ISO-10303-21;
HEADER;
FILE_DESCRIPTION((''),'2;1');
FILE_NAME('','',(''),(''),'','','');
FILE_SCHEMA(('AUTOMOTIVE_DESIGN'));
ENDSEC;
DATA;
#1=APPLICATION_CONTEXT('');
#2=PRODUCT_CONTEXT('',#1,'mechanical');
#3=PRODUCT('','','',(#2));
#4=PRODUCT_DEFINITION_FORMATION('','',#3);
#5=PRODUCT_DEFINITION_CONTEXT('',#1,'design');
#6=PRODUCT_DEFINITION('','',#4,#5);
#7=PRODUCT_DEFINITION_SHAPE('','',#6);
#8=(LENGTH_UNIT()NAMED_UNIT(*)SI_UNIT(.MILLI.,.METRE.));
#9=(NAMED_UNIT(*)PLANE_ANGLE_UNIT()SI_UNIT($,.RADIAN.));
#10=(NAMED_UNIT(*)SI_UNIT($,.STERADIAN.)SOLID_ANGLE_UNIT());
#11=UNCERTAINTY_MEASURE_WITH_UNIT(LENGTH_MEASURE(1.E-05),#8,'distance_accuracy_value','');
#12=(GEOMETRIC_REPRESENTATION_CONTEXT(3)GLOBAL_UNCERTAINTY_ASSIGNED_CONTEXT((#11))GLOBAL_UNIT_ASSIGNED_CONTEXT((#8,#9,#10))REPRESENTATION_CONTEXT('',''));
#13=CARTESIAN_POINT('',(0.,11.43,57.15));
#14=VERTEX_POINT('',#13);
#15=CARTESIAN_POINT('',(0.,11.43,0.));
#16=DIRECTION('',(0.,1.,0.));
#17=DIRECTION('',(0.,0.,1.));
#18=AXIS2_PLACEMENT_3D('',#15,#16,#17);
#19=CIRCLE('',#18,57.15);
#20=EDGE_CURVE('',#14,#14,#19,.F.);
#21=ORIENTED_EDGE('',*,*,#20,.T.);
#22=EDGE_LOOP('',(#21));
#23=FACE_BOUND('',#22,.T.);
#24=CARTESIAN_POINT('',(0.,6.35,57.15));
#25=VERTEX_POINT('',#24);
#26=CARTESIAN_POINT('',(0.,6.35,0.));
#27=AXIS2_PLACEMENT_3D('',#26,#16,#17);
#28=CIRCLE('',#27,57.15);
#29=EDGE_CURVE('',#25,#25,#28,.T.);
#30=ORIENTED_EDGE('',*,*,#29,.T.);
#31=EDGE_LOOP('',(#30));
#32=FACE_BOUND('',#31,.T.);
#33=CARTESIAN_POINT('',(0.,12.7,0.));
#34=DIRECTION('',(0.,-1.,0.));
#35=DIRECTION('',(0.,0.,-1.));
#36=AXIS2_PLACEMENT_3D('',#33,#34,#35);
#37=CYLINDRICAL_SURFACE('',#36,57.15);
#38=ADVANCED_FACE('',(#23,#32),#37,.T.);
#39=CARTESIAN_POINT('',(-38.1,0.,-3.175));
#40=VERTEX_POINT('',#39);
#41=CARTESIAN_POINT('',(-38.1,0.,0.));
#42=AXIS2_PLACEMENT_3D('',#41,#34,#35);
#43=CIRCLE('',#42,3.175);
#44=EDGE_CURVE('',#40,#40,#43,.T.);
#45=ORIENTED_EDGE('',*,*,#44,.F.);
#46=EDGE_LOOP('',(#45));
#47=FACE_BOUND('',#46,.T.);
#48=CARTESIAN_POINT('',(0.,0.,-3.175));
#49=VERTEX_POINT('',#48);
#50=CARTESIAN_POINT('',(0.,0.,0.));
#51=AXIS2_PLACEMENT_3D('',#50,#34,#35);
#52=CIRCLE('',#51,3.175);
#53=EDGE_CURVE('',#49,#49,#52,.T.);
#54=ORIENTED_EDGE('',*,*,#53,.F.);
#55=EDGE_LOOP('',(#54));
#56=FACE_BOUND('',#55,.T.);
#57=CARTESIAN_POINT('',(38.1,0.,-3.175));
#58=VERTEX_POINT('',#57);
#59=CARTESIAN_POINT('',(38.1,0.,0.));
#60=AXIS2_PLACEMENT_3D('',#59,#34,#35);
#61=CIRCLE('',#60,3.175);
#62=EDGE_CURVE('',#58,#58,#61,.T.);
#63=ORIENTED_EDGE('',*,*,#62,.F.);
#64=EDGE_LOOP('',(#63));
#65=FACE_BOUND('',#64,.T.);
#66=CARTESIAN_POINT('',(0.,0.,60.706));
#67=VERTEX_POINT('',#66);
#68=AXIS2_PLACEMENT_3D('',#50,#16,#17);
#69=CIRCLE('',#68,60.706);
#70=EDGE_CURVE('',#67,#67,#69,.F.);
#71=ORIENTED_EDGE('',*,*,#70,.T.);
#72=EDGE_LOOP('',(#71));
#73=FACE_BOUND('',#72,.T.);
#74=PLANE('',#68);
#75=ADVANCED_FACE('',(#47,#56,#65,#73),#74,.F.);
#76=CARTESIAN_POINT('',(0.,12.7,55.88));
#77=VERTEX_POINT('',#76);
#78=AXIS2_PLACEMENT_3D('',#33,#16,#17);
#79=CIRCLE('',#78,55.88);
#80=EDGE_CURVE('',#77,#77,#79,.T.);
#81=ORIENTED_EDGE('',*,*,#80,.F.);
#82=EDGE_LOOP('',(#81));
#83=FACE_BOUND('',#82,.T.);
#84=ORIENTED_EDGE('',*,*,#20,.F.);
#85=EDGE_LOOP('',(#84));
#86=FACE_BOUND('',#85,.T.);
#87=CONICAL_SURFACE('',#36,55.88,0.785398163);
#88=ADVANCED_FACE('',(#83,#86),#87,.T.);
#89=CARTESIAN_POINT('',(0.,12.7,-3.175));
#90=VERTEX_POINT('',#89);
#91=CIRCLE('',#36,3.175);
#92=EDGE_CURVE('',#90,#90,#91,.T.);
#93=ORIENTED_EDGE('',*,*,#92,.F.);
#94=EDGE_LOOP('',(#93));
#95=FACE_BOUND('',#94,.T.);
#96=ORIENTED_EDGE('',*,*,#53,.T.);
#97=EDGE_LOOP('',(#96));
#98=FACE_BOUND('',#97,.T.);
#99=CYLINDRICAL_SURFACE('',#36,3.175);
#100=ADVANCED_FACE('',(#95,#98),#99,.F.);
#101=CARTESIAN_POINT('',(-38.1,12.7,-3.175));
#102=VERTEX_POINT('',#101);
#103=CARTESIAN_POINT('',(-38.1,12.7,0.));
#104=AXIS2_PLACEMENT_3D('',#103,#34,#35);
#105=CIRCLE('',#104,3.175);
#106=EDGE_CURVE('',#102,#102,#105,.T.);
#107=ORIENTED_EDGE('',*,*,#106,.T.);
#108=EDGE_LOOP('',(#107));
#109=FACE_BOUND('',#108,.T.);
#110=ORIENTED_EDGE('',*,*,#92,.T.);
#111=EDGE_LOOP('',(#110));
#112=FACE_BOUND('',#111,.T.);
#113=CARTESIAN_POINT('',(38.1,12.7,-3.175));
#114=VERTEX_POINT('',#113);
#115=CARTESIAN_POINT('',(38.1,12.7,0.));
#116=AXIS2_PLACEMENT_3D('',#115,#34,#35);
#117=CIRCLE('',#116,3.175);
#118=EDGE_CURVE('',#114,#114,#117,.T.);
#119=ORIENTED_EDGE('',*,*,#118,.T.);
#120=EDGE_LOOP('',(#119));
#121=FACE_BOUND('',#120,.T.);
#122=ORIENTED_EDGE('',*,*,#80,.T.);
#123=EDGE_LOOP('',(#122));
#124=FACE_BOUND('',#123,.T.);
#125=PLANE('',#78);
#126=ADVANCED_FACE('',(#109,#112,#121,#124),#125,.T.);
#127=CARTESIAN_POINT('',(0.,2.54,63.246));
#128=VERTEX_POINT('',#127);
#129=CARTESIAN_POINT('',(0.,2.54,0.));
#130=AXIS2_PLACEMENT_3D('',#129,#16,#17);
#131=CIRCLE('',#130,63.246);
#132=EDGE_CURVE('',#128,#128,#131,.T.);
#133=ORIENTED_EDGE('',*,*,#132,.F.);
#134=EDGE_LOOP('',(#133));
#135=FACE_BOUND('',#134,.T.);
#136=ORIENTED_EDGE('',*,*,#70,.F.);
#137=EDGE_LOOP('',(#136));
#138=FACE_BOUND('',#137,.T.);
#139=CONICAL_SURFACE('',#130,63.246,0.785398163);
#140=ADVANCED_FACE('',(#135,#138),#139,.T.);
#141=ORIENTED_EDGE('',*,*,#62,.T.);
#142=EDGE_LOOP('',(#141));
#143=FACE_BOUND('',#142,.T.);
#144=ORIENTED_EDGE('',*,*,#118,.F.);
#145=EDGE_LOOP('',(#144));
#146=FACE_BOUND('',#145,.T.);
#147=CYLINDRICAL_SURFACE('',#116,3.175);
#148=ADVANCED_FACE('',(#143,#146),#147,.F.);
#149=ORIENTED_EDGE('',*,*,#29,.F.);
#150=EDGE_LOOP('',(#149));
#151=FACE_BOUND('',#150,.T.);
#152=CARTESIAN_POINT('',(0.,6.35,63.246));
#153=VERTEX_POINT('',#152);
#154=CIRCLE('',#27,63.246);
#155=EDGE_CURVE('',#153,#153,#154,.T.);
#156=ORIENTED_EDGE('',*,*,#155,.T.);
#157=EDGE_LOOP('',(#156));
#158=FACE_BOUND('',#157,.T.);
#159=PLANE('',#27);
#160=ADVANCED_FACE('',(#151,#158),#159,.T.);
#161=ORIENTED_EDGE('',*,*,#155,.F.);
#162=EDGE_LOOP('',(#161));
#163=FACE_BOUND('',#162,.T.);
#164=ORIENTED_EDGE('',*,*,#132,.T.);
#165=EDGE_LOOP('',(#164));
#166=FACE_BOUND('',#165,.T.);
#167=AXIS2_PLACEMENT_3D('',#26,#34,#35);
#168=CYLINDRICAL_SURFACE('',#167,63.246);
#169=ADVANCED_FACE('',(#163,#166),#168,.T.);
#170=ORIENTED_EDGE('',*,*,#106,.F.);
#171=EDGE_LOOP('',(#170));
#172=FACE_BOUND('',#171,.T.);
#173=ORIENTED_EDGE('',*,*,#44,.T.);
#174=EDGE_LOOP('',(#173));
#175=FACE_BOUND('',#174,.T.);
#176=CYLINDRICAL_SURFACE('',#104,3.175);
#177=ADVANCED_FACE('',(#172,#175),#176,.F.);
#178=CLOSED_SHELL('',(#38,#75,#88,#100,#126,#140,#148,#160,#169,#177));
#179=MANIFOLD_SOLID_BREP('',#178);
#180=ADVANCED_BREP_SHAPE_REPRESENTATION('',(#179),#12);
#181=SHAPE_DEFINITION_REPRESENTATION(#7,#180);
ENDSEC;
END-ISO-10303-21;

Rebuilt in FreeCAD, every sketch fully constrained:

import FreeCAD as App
import Part
import Sketcher

V = App.Vector
Q = App.Units.Quantity


def edges_at(feature, points):
    """Names of the edges that pass closest to the given points."""
    edges = feature.Shape.Edges
    near = lambda p: min(range(len(edges)), key=lambda i: edges[i].distToShape(Part.Vertex(*p))[0])
    return sorted({f"Edge{near(p) + 1}" for p in points})

doc = App.newDocument("Part")
body = doc.addObject("PartDesign::Body", "Body")

# Sketch on XZ plane
sketch1 = body.newObject("Sketcher::SketchObject", "Sketch")
sketch1.AttachmentSupport = (doc.getObject("XZ_Plane"), [""])
sketch1.MapMode = "FlatFace"
sketch1.addGeometry(Part.Circle(V(0, 0, 0), V(0, 0, 1), 63), False)
sketch1.addConstraint([
    Sketcher.Constraint("Coincident", 0, 3, -1, 1),
    Sketcher.Constraint("Diameter", 0, Q("4.98 in")),
])
pad1 = body.newObject("PartDesign::Pad", "Pad")
pad1.Profile = sketch1
pad1.Length = Q("0.25 in")
pad1.Reversed = True

# Sketch on XZ plane
sketch2 = body.newObject("Sketcher::SketchObject", "Sketch001")
sketch2.AttachmentSupport = (doc.getObject("XZ_Plane"), [""])
sketch2.MapMode = "FlatFace"
sketch2.AttachmentOffset = App.Placement(V(0, 0, -0.25 * 25.4), App.Rotation())
sketch2.addGeometry(Part.Circle(V(0, 0, 0), V(0, 0, 1), 57), False)
sketch2.addConstraint([
    Sketcher.Constraint("Coincident", 0, 3, -1, 1),
    Sketcher.Constraint("Diameter", 0, Q("4.5 in")),
])
pad2 = body.newObject("PartDesign::Pad", "Pad001")
pad2.Profile = sketch2
pad2.Length = Q("0.25 in")
pad2.Reversed = True
doc.recompute()

chamfer = body.newObject("PartDesign::Chamfer", "Chamfer")
chamfer.Base = (pad2, edges_at(pad2, [(-57.15, 12.7, 0)]))
chamfer.Size = Q("0.05 in")

# Sketch on XZ plane
sketch3 = body.newObject("Sketcher::SketchObject", "Sketch002")
sketch3.AttachmentSupport = (doc.getObject("XZ_Plane"), [""])
sketch3.MapMode = "FlatFace"
sketch3.addGeometry([
    Part.Circle(V(-38.1, 0, 0), V(0, 0, 1), 3.2),
    Part.Circle(V(0, 0, 0), V(0, 0, 1), 3.2),
    Part.Circle(V(38.1, 0, 0), V(0, 0, 1), 3.2),
], False)
sketch3.addConstraint([
    Sketcher.Constraint("Coincident", 1, 3, -1, 1),
    Sketcher.Constraint("Equal", 0, 1),
    Sketcher.Constraint("Equal", 1, 2),
    Sketcher.Constraint("Symmetric", 0, 3, 2, 3, -1, 1),
    Sketcher.Constraint("PointOnObject", 0, 3, -1),
    Sketcher.Constraint("Diameter", 0, Q("0.25 in")),
    Sketcher.Constraint("DistanceX", 0, 3, 2, 3, Q("3 in")),
])
pocket1 = body.newObject("PartDesign::Pocket", "Pocket")
pocket1.Profile = sketch3
pocket1.Type = "ThroughAll"
doc.recompute()

chamfer2 = body.newObject("PartDesign::Chamfer", "Chamfer001")
chamfer2.Base = (pocket1, edges_at(pocket1, [(-63.246, 0, 0)]))
chamfer2.Size = Q("0.1 in")

doc.recompute()
